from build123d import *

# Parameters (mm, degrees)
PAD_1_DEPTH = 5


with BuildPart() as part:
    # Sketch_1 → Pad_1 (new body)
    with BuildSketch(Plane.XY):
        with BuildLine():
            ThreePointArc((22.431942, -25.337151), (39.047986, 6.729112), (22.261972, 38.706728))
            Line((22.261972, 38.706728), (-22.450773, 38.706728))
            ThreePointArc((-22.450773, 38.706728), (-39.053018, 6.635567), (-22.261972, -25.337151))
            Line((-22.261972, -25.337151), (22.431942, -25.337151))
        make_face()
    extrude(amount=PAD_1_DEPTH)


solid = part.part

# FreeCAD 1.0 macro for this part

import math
import FreeCAD as App
import Part
import Sketcher

V = App.Vector

doc = App.newDocument("Part")
body = doc.addObject("PartDesign::Body", "Body")

# Sketch on XY plane
sketch1 = body.newObject("Sketcher::SketchObject", "Sketch")
sketch1.AttachmentSupport = (doc.getObject("XY_Plane"), [""])
sketch1.MapMode = "FlatFace"
sketch1.addGeometry([
    Part.ArcOfCircle(Part.Circle(V(-0.001374, 6.625477, 0), V(0, 0, 1), 39.049497), math.radians(-54.936488), math.radians(55.240609)),
    Part.LineSegment(V(22.261972, 38.706728, 0), V(-22.450773, 38.706728, 0)),
    Part.ArcOfCircle(Part.Circle(V(0.00221, 6.750701, 0), V(0, 0, 1), 39.055397), math.radians(125.092692), math.radians(235.245123)),
    Part.LineSegment(V(-22.261972, -25.337151, 0), V(22.431942, -25.337151, 0)),
], False)
sketch1.addConstraint([
    Sketcher.Constraint("Coincident", 0, 2, 1, 1),
    Sketcher.Constraint("Coincident", 1, 2, 2, 1),
    Sketcher.Constraint("Coincident", 2, 2, 3, 1),
    Sketcher.Constraint("Coincident", 3, 2, 0, 1),
    Sketcher.Constraint("Horizontal", 1),
    Sketcher.Constraint("Horizontal", 3),
    Sketcher.Constraint("Radius", 0, 39.049497),
    Sketcher.Constraint("Radius", 2, 39.055397),
    Sketcher.Constraint("DistanceY", -1, 1, 2, 3, 6.750701),
    Sketcher.Constraint("DistanceX", 1, 2, 0, 3, 22.449399),
    Sketcher.Constraint("DistanceX", 2, 2, 0, 3, 22.260598),
    Sketcher.Constraint("DistanceX", 1, 2, 1, 1, 44.712745),
    Sketcher.Constraint("DistanceX", 3, 1, 3, 2, 44.693914),
    Sketcher.Constraint("DistanceX", -1, 1, 2, 3, 0.00221),
])
pad1 = body.newObject("PartDesign::Pad", "Pad")
pad1.Profile = sketch1
pad1.Length = 5

doc.recompute()
